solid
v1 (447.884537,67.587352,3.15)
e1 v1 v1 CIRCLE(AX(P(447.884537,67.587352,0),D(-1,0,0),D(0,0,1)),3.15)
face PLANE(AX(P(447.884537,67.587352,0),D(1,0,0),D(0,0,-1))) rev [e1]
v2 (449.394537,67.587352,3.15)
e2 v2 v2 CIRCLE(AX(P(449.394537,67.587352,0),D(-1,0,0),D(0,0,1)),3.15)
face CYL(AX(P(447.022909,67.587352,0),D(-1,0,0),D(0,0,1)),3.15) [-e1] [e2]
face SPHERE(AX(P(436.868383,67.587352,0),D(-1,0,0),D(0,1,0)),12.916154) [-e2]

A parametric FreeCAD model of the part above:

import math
import FreeCAD as App
import Part
import Sketcher

doc = App.newDocument("Part")
body = doc.addObject("PartDesign::Body", "Body")

# Sketch on XY plane
sketch1 = doc.addObject("Sketcher::SketchObject", "Sketch")
body.addObject(sketch1)
sketch1.AttachmentSupport = (doc.XY_Plane, [""])
sketch1.MapMode = "FlatFace"
sketch1.addGeometry([
    Part.LineSegment(App.Vector(447.9, 70.7, 0), App.Vector(447.9, 67.6, 0)),
    Part.LineSegment(App.Vector(447.9, 67.6, 0), App.Vector(449.8, 67.6, 0)),
    Part.ArcOfCircle(Part.Circle(App.Vector(436.9, 67.6, 0), App.Vector(0, 0, 1), 12.9), math.radians(0), math.radians(14.12)),
    Part.LineSegment(App.Vector(449.4, 70.7, 0), App.Vector(447.9, 70.7, 0)),
], False)
sketch1.addGeometry(Part.LineSegment(App.Vector(436.9, 67.6, 0), App.Vector(449.8, 67.6, 0)), True)  # axis
sketch1.addConstraint([
    Sketcher.Constraint("Coincident", 0, 2, 1, 1),
    Sketcher.Constraint("Coincident", 1, 2, 2, 1),
    Sketcher.Constraint("Coincident", 2, 2, 3, 1),
    Sketcher.Constraint("Coincident", 3, 2, 0, 1),
    Sketcher.Constraint("Vertical", 0),
    Sketcher.Constraint("Horizontal", 1),
    Sketcher.Constraint("Horizontal", 3),
    Sketcher.Constraint("Horizontal", 4),
    Sketcher.Constraint("Coincident", 4, 1, 2, 3),
    Sketcher.Constraint("Coincident", 4, 2, 1, 2),
    Sketcher.Constraint("DistanceX", 1, 1, 1, 2, 1.9),
    Sketcher.Constraint("DistanceX", 3, 2, 3, 1, 1.51),
    Sketcher.Constraint("DistanceY", 0, 2, 0, 1, 3.15),
    Sketcher.Constraint("DistanceY", -1, 1, 2, 3, 67.587352),
    Sketcher.Constraint("DistanceX", -1, 1, 2, 3, 436.868383),
])
revolution = doc.addObject("PartDesign::Revolution", "Revolution")
body.addObject(revolution)
revolution.Profile = sketch1
revolution.ReferenceAxis = (sketch1, ["Axis0"])
revolution.Angle = 360

doc.recompute()
